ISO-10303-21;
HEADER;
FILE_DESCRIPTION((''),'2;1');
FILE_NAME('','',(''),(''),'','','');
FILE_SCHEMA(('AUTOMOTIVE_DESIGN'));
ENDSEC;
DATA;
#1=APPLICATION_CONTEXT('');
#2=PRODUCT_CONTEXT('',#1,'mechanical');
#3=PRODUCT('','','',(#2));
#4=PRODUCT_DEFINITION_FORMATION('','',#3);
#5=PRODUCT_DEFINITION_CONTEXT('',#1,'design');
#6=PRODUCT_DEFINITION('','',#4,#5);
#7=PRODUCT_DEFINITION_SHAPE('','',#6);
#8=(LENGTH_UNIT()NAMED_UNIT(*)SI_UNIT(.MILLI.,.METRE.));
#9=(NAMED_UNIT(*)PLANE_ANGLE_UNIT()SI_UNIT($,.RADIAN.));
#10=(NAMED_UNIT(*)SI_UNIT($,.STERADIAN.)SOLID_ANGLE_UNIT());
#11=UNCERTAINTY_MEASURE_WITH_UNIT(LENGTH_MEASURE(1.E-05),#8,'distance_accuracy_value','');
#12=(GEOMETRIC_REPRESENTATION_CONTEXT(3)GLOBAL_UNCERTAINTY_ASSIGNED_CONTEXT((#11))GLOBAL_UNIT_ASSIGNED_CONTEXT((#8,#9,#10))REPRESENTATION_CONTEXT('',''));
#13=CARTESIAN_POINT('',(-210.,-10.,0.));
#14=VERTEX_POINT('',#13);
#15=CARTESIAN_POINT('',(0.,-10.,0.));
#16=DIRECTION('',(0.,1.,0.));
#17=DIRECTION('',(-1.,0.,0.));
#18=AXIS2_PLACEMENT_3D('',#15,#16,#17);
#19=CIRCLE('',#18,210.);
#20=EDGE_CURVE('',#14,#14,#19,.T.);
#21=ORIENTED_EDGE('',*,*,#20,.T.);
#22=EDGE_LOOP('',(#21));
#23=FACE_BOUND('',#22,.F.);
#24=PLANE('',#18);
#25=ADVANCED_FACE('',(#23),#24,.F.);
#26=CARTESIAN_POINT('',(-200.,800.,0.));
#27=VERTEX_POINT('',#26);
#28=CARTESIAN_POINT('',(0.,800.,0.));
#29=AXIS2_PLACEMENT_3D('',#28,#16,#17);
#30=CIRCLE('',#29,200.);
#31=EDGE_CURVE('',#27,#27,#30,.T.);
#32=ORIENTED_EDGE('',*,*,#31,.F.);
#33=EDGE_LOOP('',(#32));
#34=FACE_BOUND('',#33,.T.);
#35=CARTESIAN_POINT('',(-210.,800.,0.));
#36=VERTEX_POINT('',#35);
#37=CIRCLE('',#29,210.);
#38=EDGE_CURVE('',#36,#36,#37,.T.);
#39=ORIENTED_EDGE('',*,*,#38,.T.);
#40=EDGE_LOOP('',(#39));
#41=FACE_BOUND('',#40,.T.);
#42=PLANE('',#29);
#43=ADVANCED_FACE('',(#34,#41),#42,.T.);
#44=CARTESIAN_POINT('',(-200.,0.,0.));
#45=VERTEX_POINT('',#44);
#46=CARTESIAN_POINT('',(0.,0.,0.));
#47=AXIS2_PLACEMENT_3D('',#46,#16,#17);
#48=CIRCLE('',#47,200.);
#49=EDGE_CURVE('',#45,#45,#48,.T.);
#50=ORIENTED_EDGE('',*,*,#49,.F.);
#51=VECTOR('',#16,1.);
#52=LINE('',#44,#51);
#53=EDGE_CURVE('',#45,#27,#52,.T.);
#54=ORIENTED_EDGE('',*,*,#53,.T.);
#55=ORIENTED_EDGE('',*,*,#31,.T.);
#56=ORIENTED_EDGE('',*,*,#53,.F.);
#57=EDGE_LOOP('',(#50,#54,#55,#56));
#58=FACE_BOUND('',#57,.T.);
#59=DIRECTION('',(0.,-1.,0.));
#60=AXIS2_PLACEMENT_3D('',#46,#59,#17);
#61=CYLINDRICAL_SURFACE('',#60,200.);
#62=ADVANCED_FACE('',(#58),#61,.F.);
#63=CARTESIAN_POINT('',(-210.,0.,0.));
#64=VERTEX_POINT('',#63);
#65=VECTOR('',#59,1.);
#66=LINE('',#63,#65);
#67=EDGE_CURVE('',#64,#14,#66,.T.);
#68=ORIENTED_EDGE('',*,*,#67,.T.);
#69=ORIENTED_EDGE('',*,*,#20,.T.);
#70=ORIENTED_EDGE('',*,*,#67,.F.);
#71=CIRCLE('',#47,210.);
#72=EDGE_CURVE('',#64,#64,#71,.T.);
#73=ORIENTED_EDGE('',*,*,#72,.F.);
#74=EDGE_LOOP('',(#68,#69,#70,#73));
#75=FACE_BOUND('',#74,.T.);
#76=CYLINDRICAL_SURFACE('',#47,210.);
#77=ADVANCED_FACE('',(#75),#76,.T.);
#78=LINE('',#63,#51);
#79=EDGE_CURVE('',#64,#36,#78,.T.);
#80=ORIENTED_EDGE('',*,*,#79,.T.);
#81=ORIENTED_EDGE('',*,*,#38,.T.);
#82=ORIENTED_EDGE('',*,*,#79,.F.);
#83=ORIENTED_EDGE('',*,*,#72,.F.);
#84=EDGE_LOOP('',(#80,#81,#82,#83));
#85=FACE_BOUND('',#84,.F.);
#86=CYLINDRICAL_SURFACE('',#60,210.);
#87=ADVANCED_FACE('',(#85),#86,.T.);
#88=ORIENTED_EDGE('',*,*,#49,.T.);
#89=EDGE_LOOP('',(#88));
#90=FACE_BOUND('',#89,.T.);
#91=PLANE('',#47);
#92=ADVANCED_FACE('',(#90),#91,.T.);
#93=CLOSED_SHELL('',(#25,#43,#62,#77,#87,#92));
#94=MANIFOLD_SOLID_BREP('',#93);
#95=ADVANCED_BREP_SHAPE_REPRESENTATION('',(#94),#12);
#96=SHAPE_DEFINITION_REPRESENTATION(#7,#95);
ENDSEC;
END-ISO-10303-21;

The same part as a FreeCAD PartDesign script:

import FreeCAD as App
import Part
import Sketcher

doc = App.newDocument("Part")
body = doc.addObject("PartDesign::Body", "Body")

# Sketch on XZ plane
sketch1 = doc.addObject("Sketcher::SketchObject", "Sketch")
body.addObject(sketch1)
sketch1.AttachmentSupport = (doc.XZ_Plane, [""])
sketch1.MapMode = "FlatFace"
sketch1.addGeometry(Part.Circle(App.Vector(0, 0, 0), App.Vector(0, 0, 1), 210), False)
sketch1.addConstraint([
    Sketcher.Constraint("Coincident", 0, 3, -1, 1),
    Sketcher.Constraint("Diameter", 0, 420.0),
])
pad1 = doc.addObject("PartDesign::Pad", "Pad")
body.addObject(pad1)
pad1.Profile = sketch1
pad1.Length = 10

# Sketch on XZ plane
sketch2 = doc.addObject("Sketcher::SketchObject", "Sketch001")
body.addObject(sketch2)
sketch2.AttachmentSupport = (doc.XZ_Plane, [""])
sketch2.MapMode = "FlatFace"
sketch2.addGeometry([
    Part.Circle(App.Vector(0, 0, 0), App.Vector(0, 0, 1), 210),
    Part.Circle(App.Vector(0, 0, 0), App.Vector(0, 0, 1), 200),
], False)
sketch2.addConstraint([
    Sketcher.Constraint("Coincident", 0, 3, -1, 1),
    Sketcher.Constraint("Coincident", 1, 3, -1, 1),
    Sketcher.Constraint("Diameter", 0, 420.0),
    Sketcher.Constraint("Diameter", 1, 400.0),
])
pad2 = doc.addObject("PartDesign::Pad", "Pad001")
body.addObject(pad2)
pad2.Profile = sketch2
pad2.Length = 800
pad2.Reversed = True

doc.recompute()
